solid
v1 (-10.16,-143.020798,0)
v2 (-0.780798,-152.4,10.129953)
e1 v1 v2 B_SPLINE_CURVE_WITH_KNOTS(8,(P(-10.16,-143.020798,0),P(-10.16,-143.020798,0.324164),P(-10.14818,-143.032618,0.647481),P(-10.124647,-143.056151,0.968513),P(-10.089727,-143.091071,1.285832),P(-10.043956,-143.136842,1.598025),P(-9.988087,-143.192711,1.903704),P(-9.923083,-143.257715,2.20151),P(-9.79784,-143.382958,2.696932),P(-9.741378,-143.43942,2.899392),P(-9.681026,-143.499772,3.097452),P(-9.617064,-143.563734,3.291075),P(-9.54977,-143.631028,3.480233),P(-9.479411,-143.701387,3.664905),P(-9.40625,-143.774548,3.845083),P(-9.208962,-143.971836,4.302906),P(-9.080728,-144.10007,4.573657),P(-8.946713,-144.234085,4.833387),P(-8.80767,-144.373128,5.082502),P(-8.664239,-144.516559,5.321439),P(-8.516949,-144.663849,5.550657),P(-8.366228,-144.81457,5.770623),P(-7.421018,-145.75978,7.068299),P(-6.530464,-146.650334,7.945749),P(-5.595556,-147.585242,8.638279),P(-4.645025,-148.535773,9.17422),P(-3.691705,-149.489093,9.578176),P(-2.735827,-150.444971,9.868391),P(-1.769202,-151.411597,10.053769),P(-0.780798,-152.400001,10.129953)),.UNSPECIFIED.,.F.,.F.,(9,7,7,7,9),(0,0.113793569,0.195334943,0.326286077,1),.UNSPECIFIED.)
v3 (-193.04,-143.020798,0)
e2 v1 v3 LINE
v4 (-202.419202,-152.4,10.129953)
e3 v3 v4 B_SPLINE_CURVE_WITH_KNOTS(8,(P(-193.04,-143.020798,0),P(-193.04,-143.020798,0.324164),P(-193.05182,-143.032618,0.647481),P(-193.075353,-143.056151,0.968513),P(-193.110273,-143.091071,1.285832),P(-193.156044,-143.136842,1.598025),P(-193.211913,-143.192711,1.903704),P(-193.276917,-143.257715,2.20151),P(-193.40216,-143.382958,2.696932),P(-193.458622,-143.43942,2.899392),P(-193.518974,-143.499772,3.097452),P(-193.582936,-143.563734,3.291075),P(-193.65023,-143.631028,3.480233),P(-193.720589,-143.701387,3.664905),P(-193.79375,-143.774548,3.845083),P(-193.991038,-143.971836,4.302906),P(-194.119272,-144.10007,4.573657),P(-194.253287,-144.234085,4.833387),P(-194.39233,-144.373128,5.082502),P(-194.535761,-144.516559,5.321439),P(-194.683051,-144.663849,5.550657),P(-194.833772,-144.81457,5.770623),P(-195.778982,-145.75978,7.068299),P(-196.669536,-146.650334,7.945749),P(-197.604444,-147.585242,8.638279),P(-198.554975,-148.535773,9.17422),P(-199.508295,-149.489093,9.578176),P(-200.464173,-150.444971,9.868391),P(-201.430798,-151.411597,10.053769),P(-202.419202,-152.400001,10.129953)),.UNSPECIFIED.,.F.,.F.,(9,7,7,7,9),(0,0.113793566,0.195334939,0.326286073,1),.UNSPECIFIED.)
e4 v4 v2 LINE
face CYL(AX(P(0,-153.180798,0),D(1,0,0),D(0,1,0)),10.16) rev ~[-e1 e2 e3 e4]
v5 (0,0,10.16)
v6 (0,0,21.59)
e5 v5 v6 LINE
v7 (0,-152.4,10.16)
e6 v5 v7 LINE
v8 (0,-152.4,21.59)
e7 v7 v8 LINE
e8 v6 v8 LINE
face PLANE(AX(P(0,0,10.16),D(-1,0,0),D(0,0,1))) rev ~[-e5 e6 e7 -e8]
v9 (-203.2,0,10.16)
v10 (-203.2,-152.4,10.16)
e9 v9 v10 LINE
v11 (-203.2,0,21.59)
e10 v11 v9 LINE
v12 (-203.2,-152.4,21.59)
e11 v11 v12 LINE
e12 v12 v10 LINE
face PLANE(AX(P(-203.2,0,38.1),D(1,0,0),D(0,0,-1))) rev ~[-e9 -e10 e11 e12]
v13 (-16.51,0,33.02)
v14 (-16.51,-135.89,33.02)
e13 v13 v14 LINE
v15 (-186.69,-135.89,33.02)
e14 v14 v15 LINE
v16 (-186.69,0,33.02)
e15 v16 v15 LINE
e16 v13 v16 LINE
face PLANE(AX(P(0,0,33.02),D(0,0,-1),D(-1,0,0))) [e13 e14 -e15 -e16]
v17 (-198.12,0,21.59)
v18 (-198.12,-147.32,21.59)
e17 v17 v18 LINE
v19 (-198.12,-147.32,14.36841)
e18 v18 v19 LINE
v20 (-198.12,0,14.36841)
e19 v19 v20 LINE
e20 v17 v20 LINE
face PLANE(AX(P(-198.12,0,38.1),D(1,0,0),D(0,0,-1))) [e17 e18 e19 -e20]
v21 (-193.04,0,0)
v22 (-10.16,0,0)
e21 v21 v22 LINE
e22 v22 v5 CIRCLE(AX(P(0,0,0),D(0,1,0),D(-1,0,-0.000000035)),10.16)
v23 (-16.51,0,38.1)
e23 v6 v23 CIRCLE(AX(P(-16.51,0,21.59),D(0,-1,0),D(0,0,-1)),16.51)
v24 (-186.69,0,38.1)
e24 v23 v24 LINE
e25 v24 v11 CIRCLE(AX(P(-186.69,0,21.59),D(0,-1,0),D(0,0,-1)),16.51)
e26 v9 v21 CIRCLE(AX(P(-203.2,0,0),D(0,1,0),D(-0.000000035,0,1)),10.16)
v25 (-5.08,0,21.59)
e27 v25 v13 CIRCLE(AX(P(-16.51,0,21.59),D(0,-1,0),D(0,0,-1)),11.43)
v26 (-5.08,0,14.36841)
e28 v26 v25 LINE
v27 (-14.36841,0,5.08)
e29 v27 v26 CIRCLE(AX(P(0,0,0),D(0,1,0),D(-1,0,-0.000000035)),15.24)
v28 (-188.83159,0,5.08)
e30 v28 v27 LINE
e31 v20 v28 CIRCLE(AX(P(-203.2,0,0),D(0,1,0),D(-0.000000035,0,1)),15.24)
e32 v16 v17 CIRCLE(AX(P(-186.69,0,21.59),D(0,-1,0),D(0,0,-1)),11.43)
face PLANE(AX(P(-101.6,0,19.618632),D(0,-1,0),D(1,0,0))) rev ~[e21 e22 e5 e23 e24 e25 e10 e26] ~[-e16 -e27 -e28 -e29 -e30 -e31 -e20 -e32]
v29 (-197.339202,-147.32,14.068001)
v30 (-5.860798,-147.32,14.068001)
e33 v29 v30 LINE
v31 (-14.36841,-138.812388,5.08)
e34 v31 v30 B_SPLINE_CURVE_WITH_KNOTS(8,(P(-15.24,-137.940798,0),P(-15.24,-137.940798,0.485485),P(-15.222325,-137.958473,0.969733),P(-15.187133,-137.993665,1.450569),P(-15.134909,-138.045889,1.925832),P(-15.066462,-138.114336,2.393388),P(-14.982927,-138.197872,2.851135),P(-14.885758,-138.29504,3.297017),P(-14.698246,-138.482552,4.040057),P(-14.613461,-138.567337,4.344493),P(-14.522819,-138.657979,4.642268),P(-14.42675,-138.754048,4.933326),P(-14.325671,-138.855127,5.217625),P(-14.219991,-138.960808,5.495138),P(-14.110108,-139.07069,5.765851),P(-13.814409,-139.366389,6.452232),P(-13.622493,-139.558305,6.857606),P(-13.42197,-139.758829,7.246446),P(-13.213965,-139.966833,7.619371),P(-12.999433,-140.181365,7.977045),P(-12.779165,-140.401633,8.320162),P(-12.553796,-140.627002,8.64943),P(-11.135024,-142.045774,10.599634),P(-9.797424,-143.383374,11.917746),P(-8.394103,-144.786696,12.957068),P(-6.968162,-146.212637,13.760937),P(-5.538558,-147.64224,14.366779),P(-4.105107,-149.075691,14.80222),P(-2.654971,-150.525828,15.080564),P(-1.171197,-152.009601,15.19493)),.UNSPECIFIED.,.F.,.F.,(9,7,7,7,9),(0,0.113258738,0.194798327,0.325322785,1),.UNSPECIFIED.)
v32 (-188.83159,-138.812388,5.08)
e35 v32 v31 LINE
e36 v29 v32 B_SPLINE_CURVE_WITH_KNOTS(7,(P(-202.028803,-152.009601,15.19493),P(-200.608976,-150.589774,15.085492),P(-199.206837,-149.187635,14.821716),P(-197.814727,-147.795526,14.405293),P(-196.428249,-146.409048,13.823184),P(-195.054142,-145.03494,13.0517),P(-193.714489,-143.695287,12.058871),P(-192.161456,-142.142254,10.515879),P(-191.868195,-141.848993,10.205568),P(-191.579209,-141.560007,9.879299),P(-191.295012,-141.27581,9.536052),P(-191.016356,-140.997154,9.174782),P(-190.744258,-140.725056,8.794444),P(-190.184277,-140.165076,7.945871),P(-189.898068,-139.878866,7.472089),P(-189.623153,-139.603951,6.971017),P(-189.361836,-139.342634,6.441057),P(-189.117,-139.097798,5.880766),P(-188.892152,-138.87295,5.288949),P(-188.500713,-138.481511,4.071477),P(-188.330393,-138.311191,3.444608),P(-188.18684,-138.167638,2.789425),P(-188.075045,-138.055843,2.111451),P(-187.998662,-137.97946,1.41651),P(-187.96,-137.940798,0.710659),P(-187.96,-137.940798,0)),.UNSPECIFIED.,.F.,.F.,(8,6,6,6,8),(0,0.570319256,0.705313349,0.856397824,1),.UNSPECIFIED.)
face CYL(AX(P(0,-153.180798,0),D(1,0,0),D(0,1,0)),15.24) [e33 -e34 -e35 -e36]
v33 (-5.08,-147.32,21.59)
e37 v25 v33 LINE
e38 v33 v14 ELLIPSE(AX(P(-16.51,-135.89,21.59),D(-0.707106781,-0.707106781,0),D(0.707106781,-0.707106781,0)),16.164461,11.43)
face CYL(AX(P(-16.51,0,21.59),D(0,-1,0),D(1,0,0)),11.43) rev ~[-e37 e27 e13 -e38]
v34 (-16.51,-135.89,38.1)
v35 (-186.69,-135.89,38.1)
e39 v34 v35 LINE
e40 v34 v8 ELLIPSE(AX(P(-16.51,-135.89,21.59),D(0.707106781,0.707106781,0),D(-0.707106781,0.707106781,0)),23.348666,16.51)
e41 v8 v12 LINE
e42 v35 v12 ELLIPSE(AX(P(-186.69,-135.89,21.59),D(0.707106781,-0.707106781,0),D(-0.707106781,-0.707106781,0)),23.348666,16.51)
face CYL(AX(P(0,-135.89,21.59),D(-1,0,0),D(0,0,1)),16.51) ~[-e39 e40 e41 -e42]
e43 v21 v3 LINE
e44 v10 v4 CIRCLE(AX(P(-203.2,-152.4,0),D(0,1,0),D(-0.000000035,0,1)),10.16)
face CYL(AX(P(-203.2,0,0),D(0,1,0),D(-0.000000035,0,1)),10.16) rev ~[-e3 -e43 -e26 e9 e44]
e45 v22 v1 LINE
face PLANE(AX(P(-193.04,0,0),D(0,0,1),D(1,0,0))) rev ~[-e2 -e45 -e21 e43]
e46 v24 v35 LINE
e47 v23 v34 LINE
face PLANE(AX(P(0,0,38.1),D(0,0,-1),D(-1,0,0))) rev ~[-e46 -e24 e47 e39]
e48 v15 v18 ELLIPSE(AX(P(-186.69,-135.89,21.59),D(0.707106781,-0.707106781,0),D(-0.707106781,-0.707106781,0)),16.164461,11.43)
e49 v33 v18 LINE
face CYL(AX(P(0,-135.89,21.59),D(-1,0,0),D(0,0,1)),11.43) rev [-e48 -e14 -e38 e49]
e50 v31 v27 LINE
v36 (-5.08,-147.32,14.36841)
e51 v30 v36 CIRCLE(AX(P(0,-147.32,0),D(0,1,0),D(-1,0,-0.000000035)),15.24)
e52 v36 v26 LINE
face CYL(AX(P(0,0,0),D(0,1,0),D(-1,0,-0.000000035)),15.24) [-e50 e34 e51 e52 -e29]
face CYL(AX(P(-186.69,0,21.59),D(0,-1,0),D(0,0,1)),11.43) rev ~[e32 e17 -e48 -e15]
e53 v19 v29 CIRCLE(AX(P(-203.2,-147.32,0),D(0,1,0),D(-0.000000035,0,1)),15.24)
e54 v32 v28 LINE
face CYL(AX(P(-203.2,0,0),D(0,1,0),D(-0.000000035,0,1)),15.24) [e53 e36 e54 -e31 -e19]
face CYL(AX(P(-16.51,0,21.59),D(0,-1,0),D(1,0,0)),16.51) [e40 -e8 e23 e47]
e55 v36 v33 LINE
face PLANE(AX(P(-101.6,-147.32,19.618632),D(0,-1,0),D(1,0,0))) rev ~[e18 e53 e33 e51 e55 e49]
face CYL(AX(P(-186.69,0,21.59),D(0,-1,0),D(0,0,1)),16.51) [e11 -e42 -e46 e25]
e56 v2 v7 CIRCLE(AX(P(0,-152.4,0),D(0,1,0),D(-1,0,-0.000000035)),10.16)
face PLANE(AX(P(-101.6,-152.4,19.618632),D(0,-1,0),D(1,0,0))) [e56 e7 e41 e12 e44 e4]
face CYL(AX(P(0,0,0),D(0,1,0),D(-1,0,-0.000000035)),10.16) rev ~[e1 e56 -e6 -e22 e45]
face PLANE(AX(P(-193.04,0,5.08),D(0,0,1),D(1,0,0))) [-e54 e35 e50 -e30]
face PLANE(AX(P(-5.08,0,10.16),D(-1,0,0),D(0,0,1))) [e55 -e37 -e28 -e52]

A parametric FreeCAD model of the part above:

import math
import FreeCAD as App
import Part
import Sketcher
Q = App.Units.Quantity


def edges_at(feature, points):
    """Names of the edges that pass closest to the given points."""
    edges = feature.Shape.Edges
    near = lambda p: min(range(len(edges)), key=lambda i: edges[i].distToShape(Part.Vertex(*p))[0])
    return sorted({f"Edge{near(p) + 1}" for p in points})


def faces_at(feature, points):
    """Names of the faces that lie closest to the given points."""
    faces = feature.Shape.Faces
    near = lambda p: min(range(len(faces)), key=lambda i: faces[i].distToShape(Part.Vertex(*p))[0])
    return sorted({f"Face{near(p) + 1}" for p in points})

doc = App.newDocument("Part")
body = doc.addObject("PartDesign::Body", "Body")

# Sketch on XZ plane
sketch1 = doc.addObject("Sketcher::SketchObject", "Sketch")
body.addObject(sketch1)
sketch1.AttachmentSupport = (doc.XZ_Plane, [""])
sketch1.MapMode = "FlatFace"
sketch1.addGeometry([
    Part.LineSegment(App.Vector(-193.04, 0, 0), App.Vector(-10.16, 0, 0)),  # 0
    Part.ArcOfCircle(Part.Circle(App.Vector(0, 0, 0), App.Vector(0, 0, 1), 10.16), math.radians(89.999998), math.radians(180.000002)),  # 1
    Part.LineSegment(App.Vector(0, 10.16, 0), App.Vector(0, 38.1, 0)),  # 2
    Part.LineSegment(App.Vector(0, 38.1, 0), App.Vector(-203.2, 38.1, 0)),  # 3
    Part.LineSegment(App.Vector(-203.2, 38.1, 0), App.Vector(-203.2, 10.16, 0)),  # 4
    Part.ArcOfCircle(Part.Circle(App.Vector(-203.2, 0, 0), App.Vector(0, 0, 1), 10.16), math.radians(-0.000002), math.radians(90.000002)),  # 5
], False)
sketch1.addConstraint([
    Sketcher.Constraint("Coincident", 0, 2, 1, 2),
    Sketcher.Constraint("Coincident", 1, 1, 2, 1),
    Sketcher.Constraint("Coincident", 2, 2, 3, 1),
    Sketcher.Constraint("Coincident", 3, 2, 4, 1),
    Sketcher.Constraint("Coincident", 4, 2, 5, 2),
    Sketcher.Constraint("Coincident", 5, 1, 0, 1),
    Sketcher.Constraint("Horizontal", 0),
    Sketcher.Constraint("Vertical", 2),
    Sketcher.Constraint("Horizontal", 3),
    Sketcher.Constraint("Vertical", 4),
    Sketcher.Constraint("Coincident", 1, 3, -1, 1),
    Sketcher.Constraint("Equal", 1, 5),
    Sketcher.Constraint("PointOnObject", 5, 3, -1),
    Sketcher.Constraint("PointOnObject", 0, 2, -1),
    Sketcher.Constraint("PointOnObject", 1, 1, -2),
    Sketcher.Constraint("Vertical", 5, 3, 3, 2),
    Sketcher.Constraint("Radius", 1, Q("0.4 in")),
    Sketcher.Constraint("DistanceX", 3, 2, 3, 1, Q("8 in")),
    Sketcher.Constraint("DistanceY", 2, 1, 2, 2, Q("1.1 in")),
])
pad1 = doc.addObject("PartDesign::Pad", "Pad")
body.addObject(pad1)
pad1.Profile = sketch1
pad1.Length = Q("6 in")

# Sketch on YZ plane
sketch2 = doc.addObject("Sketcher::SketchObject", "Sketch001")
body.addObject(sketch2)
sketch2.AttachmentSupport = (doc.YZ_Plane, [""])
sketch2.MapMode = "FlatFace"
sketch2.addGeometry(Part.Circle(App.Vector(-153.180798, 0, 0), App.Vector(0, 0, 1), 10.16), False)
sketch2.addConstraint([
    Sketcher.Constraint("PointOnObject", 0, 3, -1),
    Sketcher.Constraint("Diameter", 0, Q("0.8 in")),
    Sketcher.Constraint("DistanceX", 0, 3, -1, 1, 153.180798),
])
pocket1 = doc.addObject("PartDesign::Pocket", "Pocket")
body.addObject(pocket1)
pocket1.Profile = sketch2
pocket1.Length = Q("10 in")
doc.recompute()

fillet = doc.addObject("PartDesign::Fillet", "Fillet")
body.addObject(fillet)
fillet.Base = (pocket1, edges_at(pocket1, [(-101.6, -152.4, 38.1), (-203.2, -76.2, 38.1), (0, -76.2, 38.1)]))
fillet.Radius = Q("0.65 in")
doc.recompute()

thickness = doc.addObject("PartDesign::Thickness", "Thickness")
body.addObject(thickness)
thickness.Base = (fillet, faces_at(fillet, [(-101.6, 0, 19.05)]))
thickness.Value = Q("0.2 in")
thickness.Reversed = True
thickness.Join = "Arc"

doc.recompute()
